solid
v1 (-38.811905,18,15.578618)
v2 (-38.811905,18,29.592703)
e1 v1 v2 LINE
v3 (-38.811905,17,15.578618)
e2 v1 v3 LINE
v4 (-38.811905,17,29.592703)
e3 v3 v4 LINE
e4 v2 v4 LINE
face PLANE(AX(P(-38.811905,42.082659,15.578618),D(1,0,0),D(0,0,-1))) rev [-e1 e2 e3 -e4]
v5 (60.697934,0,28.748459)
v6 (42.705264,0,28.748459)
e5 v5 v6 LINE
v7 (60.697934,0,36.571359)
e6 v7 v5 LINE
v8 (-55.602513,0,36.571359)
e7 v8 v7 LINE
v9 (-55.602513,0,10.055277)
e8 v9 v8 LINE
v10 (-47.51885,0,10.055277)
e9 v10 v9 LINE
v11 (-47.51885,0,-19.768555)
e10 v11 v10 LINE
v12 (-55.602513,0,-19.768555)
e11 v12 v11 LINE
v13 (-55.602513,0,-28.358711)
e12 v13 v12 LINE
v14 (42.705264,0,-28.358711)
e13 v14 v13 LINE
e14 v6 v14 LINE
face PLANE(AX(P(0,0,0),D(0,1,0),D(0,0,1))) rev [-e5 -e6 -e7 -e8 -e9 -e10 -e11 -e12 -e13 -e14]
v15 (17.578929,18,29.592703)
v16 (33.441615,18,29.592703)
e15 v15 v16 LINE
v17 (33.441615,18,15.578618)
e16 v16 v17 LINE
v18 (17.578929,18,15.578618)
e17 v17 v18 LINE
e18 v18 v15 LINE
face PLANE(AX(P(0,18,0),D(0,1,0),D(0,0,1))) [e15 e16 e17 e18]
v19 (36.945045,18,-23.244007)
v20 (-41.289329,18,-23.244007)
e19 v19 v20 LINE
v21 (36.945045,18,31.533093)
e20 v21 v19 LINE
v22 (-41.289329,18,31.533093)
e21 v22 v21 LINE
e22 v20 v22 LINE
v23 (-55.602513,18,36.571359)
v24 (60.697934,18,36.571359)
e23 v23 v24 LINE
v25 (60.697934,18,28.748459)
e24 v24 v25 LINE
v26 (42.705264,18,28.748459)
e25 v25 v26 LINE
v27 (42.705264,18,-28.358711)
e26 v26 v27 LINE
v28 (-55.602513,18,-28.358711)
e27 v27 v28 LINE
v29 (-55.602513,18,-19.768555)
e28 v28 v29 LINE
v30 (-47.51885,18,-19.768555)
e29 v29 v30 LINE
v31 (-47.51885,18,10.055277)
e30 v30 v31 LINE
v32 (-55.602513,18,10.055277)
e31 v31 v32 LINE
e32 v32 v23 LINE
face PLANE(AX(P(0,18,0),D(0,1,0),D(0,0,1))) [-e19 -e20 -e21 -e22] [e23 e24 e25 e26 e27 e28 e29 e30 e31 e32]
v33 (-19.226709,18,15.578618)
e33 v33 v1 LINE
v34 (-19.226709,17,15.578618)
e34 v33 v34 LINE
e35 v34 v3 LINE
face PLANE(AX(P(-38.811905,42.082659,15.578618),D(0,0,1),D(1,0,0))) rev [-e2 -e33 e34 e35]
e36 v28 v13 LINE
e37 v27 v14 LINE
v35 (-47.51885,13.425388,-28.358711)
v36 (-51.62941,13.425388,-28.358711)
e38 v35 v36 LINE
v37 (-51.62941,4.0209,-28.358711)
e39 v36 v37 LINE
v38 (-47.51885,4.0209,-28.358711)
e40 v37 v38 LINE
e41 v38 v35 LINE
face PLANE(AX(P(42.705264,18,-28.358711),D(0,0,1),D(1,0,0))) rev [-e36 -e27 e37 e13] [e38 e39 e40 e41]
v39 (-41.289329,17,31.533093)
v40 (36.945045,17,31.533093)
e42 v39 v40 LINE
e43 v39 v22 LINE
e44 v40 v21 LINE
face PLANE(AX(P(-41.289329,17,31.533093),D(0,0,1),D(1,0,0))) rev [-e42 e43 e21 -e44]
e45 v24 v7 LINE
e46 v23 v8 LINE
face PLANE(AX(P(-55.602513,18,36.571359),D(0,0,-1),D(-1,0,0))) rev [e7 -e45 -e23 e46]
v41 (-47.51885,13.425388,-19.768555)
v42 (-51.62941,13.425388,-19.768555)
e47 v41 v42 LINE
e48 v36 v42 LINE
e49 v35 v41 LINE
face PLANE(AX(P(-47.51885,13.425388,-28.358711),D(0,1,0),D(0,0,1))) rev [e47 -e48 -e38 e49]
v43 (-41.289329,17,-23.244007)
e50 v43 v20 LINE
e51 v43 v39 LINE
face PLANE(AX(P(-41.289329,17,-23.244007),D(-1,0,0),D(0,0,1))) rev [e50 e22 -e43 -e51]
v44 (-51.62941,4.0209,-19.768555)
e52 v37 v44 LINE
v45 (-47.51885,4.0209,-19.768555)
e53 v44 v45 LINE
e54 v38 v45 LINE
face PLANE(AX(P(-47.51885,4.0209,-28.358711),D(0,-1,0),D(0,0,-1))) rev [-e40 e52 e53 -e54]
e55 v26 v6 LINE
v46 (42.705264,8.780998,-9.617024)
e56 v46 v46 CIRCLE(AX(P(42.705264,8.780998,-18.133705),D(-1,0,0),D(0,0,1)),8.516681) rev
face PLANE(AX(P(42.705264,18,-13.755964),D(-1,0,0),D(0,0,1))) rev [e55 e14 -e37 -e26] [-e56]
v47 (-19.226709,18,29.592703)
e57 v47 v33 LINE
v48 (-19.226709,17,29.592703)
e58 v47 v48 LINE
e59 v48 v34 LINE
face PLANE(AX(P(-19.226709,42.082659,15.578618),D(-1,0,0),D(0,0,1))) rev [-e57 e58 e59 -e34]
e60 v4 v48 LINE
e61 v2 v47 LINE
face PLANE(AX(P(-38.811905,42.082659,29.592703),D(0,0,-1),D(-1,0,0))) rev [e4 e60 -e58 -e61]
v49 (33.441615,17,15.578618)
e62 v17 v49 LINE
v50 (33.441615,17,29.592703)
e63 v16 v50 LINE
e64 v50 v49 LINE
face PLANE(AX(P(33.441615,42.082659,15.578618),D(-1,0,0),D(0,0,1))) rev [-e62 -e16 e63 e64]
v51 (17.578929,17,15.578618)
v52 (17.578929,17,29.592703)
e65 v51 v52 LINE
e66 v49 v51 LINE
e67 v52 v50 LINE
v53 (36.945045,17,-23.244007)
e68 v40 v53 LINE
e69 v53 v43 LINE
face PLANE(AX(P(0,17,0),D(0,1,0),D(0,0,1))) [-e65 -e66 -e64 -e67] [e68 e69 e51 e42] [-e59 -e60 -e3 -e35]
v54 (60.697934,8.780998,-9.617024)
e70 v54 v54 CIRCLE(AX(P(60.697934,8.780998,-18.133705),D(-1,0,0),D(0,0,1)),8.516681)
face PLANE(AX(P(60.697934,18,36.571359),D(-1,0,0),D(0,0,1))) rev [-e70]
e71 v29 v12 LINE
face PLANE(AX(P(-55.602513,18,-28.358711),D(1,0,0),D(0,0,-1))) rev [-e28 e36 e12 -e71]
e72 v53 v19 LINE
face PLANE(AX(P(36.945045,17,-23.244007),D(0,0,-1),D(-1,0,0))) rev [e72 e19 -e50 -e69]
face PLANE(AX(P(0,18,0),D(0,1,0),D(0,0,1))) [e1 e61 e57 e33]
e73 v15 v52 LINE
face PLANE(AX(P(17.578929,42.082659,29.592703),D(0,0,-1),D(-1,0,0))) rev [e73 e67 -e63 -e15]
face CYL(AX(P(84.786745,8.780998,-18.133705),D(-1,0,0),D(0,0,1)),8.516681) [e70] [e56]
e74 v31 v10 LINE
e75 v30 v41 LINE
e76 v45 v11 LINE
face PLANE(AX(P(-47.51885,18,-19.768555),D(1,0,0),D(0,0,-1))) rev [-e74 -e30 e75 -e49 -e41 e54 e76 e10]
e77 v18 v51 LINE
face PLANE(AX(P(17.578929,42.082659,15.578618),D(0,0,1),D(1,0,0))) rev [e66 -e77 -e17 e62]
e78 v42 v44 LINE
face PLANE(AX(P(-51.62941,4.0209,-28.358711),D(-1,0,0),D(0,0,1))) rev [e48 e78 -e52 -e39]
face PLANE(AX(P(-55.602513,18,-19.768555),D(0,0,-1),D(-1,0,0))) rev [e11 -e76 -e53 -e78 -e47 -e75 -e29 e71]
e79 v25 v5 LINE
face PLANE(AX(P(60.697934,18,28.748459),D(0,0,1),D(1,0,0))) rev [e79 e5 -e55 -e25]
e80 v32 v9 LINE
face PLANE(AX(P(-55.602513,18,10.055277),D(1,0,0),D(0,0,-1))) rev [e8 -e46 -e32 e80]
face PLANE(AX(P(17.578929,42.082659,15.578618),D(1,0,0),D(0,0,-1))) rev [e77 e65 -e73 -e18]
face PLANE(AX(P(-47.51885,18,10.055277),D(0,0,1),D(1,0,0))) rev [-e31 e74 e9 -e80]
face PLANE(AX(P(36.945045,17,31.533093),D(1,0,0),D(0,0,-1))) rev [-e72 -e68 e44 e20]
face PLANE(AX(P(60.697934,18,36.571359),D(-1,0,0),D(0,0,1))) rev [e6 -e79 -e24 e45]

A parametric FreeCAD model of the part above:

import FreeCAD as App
import Part
import Sketcher
from FreeCAD import Vector


def add_polygon(sketch, points):
    """Adds a closed chain of lines whose ends are joined by coincident constraints."""
    first, n = sketch.GeometryCount, len(points)
    for a, b in zip(points, points[1:] + points[:1]):
        sketch.addGeometry(Part.LineSegment(App.Vector(*a, 0), App.Vector(*b, 0)), False)
    for i in range(n):
        sketch.addConstraint(Sketcher.Constraint("Coincident", first + i, 2, first + (i + 1) % n, 1))

doc = App.newDocument("Part")
body = doc.addObject("PartDesign::Body", "Body")

# Sketch on XZ plane
sketch1 = doc.addObject("Sketcher::SketchObject", "Sketch")
body.addObject(sketch1)
sketch1.AttachmentSupport = (doc.XZ_Plane, [""])
sketch1.MapMode = "FlatFace"
add_polygon(sketch1, [(-56, -28), (-56, -20), (-48, -20), (-48, 10), (-56, 10), (-56, 37), (61, 37), (61, 29), (43, 29), (43, -28)])  # lines 0-9
sketch1.addConstraint([
    Sketcher.Constraint("Vertical", 0),
    Sketcher.Constraint("Horizontal", 1),
    Sketcher.Constraint("Vertical", 2),
    Sketcher.Constraint("Horizontal", 3),
    Sketcher.Constraint("Vertical", 4),
    Sketcher.Constraint("Horizontal", 5),
    Sketcher.Constraint("Vertical", 6),
    Sketcher.Constraint("Horizontal", 7),
    Sketcher.Constraint("Vertical", 8),
    Sketcher.Constraint("Horizontal", 9),
    Sketcher.Constraint("Vertical", 0, 2, 3, 2),
    Sketcher.Constraint("DistanceY", 6, 2, 6, 1, 7.8229),
    Sketcher.Constraint("DistanceX", 7, 2, 7, 1, 17.99267),
    Sketcher.Constraint("DistanceY", 8, 2, 8, 1, 57.10717),
    Sketcher.Constraint("DistanceX", 1, 1, 1, 2, 8.083663),
    Sketcher.Constraint("DistanceX", 5, 1, 5, 2, 116.300448),
    Sketcher.Constraint("DistanceY", 0, 1, 0, 2, 8.590156),
    Sketcher.Constraint("DistanceY", 2, 1, 2, 2, 29.823833),
    Sketcher.Constraint("DistanceX", 1, 2, -1, 1, 47.51885),
    Sketcher.Constraint("DistanceY", -1, 1, 4, 2, 36.571359),
])
pad1 = doc.addObject("PartDesign::Pad", "Pad")
body.addObject(pad1)
pad1.Profile = sketch1
pad1.Length = 18
pad1.Reversed = True

# Sketch on YZ plane
sketch2 = doc.addObject("Sketcher::SketchObject", "Sketch001")
body.addObject(sketch2)
sketch2.AttachmentSupport = (doc.YZ_Plane, [""])
sketch2.MapMode = "FlatFace"
sketch2.AttachmentOffset = App.Placement(Vector(0, 0, 42.705264), App.Rotation())
sketch2.addGeometry(Part.Circle(Vector(9, -18, 0), Vector(0, 0, 1), 9), False)
sketch2.addConstraint([
    Sketcher.Constraint("Diameter", 0, 17.033361),
    Sketcher.Constraint("DistanceX", -1, 1, 0, 3, 8.780998),
    Sketcher.Constraint("DistanceY", 0, 3, -1, 1, 18.133705),
])
pad2 = doc.addObject("PartDesign::Pad", "Pad001")
body.addObject(pad2)
pad2.Profile = sketch2
pad2.Length = 17.99267

# Sketch on XZ plane
sketch3 = doc.addObject("Sketcher::SketchObject", "Sketch002")
body.addObject(sketch3)
sketch3.AttachmentSupport = (doc.XZ_Plane, [""])
sketch3.MapMode = "FlatFace"
sketch3.AttachmentOffset = App.Placement(Vector(0, 0, -18), App.Rotation())
add_polygon(sketch3, [(-41, -23), (-41, 32), (37, 32), (37, -23)])  # lines 0-3
sketch3.addConstraint([
    Sketcher.Constraint("Vertical", 0),
    Sketcher.Constraint("Horizontal", 1),
    Sketcher.Constraint("Vertical", 2),
    Sketcher.Constraint("Horizontal", 3),
    Sketcher.Constraint("DistanceY", 0, 1, 0, 2, 54.7771),
    Sketcher.Constraint("DistanceX", 1, 1, 1, 2, 78.234374),
    Sketcher.Constraint("DistanceX", 0, 2, -1, 1, 41.289329),
    Sketcher.Constraint("DistanceY", -1, 1, 0, 2, 31.533093),
])
pocket1 = doc.addObject("PartDesign::Pocket", "Pocket")
body.addObject(pocket1)
pocket1.Profile = sketch3
pocket1.Length = 1
pocket1.Reversed = True

# Sketch on XZ plane
sketch4 = doc.addObject("Sketcher::SketchObject", "Sketch003")
body.addObject(sketch4)
sketch4.AttachmentSupport = (doc.XZ_Plane, [""])
sketch4.MapMode = "FlatFace"
sketch4.AttachmentOffset = App.Placement(Vector(0, 0, -17), App.Rotation())
add_polygon(sketch4, [(18, 16), (18, 30), (33, 30), (33, 16)])  # lines 0-3
add_polygon(sketch4, [(-39, 16), (-39, 30), (-19, 30), (-19, 16)])  # lines 4-7
sketch4.addConstraint([
    Sketcher.Constraint("Vertical", 0),
    Sketcher.Constraint("Horizontal", 1),
    Sketcher.Constraint("Vertical", 2),
    Sketcher.Constraint("Horizontal", 3),
    Sketcher.Constraint("Vertical", 4),
    Sketcher.Constraint("Horizontal", 5),
    Sketcher.Constraint("Vertical", 6),
    Sketcher.Constraint("Horizontal", 7),
    Sketcher.Constraint("Horizontal", 1, 2, 4, 2),
    Sketcher.Constraint("Horizontal", 3, 2, 6, 2),
    Sketcher.Constraint("DistanceX", 1, 1, 1, 2, 15.862686),
    Sketcher.Constraint("DistanceX", 5, 1, 5, 2, 19.585196),
    Sketcher.Constraint("DistanceY", 0, 1, 0, 2, 14.014085),
    Sketcher.Constraint("DistanceX", -1, 1, 0, 2, 17.578929),
    Sketcher.Constraint("DistanceX", 5, 2, -1, 1, 19.226709),
    Sketcher.Constraint("DistanceY", -1, 1, 0, 2, 29.592703),
])
pad3 = doc.addObject("PartDesign::Pad", "Pad002")
body.addObject(pad3)
pad3.Profile = sketch4
pad3.Length = 1
pad3.Reversed = True

# Sketch on XY plane
sketch5 = doc.addObject("Sketcher::SketchObject", "Sketch004")
body.addObject(sketch5)
sketch5.AttachmentSupport = (doc.XY_Plane, [""])
sketch5.MapMode = "FlatFace"
sketch5.AttachmentOffset = App.Placement(Vector(0, 0, -19.768555), App.Rotation())
add_polygon(sketch5, [(-51.6, 13.4), (-51.6, 4), (-47.5, 4), (-47.5, 13.4)])  # lines 0-3
sketch5.addConstraint([
    Sketcher.Constraint("Vertical", 0),
    Sketcher.Constraint("Horizontal", 1),
    Sketcher.Constraint("Vertical", 2),
    Sketcher.Constraint("Horizontal", 3),
    Sketcher.Constraint("DistanceX", 1, 1, 1, 2, 4.11056),
    Sketcher.Constraint("DistanceY", -1, 1, 0, 2, 4.0209),
    Sketcher.Constraint("DistanceY", 0, 2, 0, 1, 9.404488),
    Sketcher.Constraint("DistanceX", 0, 2, -1, 1, 51.62941),
])
pocket2 = doc.addObject("PartDesign::Pocket", "Pocket001")
body.addObject(pocket2)
pocket2.Profile = sketch5
pocket2.Type = "ThroughAll"

doc.recompute()
